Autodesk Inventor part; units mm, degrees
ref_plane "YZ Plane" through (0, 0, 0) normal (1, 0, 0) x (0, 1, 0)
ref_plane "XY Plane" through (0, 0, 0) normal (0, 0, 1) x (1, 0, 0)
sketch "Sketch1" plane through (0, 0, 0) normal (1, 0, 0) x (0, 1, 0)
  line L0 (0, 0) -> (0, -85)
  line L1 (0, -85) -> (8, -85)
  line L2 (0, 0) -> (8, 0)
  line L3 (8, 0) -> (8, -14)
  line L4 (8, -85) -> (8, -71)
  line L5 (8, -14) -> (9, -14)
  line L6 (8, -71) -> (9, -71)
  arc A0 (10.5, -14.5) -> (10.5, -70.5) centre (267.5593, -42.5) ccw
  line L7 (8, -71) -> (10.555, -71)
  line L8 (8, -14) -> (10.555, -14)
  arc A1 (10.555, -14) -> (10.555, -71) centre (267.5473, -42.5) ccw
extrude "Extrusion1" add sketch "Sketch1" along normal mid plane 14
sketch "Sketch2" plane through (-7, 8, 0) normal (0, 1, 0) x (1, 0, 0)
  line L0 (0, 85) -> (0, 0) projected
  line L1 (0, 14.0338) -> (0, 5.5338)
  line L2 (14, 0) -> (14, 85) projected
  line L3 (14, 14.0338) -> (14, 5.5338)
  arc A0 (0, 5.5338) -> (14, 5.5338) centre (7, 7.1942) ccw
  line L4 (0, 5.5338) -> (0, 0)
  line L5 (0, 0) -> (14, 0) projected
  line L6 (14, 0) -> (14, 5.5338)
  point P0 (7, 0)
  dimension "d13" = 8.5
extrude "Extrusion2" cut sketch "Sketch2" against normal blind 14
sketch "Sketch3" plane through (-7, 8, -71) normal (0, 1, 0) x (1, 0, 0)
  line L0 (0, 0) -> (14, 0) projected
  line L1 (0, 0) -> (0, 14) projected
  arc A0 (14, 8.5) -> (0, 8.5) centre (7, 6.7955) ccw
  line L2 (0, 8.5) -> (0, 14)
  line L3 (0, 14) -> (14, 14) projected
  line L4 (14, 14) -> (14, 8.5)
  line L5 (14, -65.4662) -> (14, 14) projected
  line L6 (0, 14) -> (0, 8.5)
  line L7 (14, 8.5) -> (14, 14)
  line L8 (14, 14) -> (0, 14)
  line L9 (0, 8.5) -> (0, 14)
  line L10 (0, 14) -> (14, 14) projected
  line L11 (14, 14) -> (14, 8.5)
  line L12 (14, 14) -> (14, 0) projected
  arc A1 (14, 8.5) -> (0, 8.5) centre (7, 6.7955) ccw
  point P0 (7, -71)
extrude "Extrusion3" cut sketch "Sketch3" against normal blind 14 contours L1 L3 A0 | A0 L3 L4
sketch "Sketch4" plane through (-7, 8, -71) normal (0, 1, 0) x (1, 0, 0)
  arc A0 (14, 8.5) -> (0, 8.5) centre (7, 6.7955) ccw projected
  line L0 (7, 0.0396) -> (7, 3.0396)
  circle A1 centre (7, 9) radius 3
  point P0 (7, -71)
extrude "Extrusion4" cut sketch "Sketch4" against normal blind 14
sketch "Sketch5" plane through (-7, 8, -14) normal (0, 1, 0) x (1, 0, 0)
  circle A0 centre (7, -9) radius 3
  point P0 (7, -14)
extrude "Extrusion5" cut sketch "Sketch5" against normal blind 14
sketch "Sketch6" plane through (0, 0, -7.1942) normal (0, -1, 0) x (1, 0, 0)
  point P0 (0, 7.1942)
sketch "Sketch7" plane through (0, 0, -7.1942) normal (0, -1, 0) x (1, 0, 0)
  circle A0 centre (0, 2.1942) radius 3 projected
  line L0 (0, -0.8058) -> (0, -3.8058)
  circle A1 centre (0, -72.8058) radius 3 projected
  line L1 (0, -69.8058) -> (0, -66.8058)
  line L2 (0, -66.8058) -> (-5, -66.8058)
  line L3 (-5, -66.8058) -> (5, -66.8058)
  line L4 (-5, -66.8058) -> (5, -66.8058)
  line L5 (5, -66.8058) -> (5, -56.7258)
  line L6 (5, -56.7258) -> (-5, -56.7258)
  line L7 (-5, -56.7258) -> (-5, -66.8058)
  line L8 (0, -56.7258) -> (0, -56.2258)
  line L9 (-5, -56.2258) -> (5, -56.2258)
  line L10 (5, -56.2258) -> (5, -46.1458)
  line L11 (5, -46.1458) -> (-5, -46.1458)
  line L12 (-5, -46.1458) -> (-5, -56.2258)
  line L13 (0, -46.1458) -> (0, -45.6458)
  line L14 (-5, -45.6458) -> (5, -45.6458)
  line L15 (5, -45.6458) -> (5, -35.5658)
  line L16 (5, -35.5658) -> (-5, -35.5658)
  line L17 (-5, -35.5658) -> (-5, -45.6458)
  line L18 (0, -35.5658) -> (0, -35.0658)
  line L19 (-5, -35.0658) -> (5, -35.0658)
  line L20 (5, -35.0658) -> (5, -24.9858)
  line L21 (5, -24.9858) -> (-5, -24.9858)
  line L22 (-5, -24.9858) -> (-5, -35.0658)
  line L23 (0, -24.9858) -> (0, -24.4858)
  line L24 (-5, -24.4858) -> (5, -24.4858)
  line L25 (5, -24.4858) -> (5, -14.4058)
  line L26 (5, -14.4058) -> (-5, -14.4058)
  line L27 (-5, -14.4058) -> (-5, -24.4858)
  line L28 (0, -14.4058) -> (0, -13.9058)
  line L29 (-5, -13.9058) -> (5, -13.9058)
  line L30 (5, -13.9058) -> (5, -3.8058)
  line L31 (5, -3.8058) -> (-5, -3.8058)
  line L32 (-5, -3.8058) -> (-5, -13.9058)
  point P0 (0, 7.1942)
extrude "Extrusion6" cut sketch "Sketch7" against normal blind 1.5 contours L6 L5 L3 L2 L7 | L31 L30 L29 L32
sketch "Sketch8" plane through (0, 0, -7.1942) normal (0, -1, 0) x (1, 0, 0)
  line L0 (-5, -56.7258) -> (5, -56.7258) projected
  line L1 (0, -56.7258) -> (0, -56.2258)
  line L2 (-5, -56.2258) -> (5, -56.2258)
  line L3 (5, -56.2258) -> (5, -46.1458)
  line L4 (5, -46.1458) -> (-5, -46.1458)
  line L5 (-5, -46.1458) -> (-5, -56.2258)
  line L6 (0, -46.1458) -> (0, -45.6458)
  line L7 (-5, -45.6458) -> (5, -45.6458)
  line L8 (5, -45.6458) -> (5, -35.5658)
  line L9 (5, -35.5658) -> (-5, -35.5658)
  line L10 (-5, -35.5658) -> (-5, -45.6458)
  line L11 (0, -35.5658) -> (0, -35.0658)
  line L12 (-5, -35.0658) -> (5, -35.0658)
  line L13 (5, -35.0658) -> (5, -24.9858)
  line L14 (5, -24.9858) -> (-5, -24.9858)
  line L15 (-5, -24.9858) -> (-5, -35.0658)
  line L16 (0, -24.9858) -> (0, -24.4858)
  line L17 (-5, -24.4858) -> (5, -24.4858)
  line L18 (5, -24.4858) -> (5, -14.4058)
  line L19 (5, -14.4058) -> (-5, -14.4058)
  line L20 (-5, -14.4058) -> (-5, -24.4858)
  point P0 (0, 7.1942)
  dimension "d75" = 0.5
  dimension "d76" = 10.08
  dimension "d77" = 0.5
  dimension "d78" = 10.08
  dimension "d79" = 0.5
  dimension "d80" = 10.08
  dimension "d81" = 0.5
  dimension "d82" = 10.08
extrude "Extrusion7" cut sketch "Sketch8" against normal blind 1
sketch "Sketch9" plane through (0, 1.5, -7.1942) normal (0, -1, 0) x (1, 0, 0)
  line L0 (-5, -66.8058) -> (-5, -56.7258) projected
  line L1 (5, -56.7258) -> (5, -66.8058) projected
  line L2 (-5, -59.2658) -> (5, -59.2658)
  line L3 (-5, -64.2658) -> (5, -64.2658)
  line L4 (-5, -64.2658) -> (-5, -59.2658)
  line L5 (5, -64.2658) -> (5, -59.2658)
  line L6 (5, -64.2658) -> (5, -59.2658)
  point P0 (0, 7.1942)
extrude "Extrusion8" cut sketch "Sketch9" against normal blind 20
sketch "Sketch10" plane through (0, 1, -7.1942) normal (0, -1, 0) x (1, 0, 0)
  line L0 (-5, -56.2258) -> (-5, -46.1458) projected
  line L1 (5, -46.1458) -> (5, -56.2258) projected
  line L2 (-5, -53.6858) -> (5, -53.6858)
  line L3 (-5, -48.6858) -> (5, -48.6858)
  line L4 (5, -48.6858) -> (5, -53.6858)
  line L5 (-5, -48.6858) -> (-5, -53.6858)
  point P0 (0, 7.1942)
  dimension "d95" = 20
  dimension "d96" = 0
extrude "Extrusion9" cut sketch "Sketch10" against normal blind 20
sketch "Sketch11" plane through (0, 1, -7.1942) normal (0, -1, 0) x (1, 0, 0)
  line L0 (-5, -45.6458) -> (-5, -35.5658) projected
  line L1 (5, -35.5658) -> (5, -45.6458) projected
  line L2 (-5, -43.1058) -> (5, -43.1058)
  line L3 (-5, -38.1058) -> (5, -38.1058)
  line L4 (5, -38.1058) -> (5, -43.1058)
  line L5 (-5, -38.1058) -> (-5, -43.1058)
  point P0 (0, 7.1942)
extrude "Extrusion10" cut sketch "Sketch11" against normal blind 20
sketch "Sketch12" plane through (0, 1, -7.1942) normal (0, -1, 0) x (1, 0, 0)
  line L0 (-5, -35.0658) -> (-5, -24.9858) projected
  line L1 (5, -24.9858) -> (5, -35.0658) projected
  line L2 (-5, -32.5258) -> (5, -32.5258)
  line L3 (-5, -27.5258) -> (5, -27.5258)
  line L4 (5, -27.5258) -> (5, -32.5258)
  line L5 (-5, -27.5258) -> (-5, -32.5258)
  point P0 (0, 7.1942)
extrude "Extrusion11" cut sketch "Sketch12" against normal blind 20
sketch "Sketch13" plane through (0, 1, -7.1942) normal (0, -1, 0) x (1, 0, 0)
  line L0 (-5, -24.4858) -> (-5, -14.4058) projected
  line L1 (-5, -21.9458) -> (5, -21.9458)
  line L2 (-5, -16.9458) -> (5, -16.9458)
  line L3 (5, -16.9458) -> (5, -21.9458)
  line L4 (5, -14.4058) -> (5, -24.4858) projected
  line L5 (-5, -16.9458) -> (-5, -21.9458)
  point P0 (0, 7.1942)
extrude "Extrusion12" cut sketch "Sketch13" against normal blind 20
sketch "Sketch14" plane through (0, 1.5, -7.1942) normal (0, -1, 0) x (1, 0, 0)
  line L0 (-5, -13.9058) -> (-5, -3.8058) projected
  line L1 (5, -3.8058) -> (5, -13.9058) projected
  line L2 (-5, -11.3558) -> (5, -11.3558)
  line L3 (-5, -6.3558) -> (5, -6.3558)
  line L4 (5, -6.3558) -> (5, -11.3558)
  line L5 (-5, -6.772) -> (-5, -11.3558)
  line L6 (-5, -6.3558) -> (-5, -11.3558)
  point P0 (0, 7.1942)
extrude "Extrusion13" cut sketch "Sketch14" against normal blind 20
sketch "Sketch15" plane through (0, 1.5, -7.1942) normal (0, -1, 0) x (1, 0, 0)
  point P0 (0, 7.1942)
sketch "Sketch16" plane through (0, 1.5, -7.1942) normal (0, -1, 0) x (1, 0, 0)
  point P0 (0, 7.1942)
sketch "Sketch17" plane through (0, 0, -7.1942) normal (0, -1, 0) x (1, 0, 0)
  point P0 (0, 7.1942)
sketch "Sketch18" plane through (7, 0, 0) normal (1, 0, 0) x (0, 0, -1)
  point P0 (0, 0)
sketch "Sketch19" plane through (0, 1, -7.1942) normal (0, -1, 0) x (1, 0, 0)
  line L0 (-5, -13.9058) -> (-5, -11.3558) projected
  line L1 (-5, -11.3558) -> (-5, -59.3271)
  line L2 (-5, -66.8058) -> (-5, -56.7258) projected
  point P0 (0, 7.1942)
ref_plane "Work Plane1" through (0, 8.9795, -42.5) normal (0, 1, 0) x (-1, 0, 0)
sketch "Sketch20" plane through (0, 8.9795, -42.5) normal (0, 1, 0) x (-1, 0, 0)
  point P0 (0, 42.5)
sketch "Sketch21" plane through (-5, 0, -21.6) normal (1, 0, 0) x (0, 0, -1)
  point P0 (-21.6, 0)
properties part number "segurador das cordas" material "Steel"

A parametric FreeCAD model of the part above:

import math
import FreeCAD as App
import Part
import Sketcher

doc = App.newDocument("Part")
body = doc.addObject("PartDesign::Body", "Body")

# Sketch on YZ plane
sketch1 = doc.addObject("Sketcher::SketchObject", "Sketch")
body.addObject(sketch1)
sketch1.AttachmentSupport = (doc.YZ_Plane, [""])
sketch1.MapMode = "FlatFace"
sketch1.addGeometry([
    Part.LineSegment(App.Vector(8, 0, 0), App.Vector(0, 0, 0)),  # 0
    Part.LineSegment(App.Vector(0, 0, 0), App.Vector(0, -85, 0)),  # 1
    Part.LineSegment(App.Vector(0, -85, 0), App.Vector(8, -85, 0)),  # 2
    Part.LineSegment(App.Vector(8, -85, 0), App.Vector(8, -71, 0)),  # 3
    Part.LineSegment(App.Vector(8, -71, 0), App.Vector(10.555, -71, 0)),  # 4
    Part.ArcOfCircle(Part.Circle(App.Vector(267.5473, -42.5, 0), App.Vector(0, 0, 1), 258.567771), math.radians(-173.783318), math.radians(-173.671855)),  # 5
    Part.ArcOfCircle(Part.Circle(App.Vector(267.5593, -42.5, 0), App.Vector(0, 0, 1), 258.579743), math.radians(173.783606), math.radians(186.216394)),  # 6
    Part.ArcOfCircle(Part.Circle(App.Vector(267.5473, -42.5, 0), App.Vector(0, 0, 1), 258.567771), math.radians(173.671855), math.radians(173.783318)),  # 7
    Part.LineSegment(App.Vector(10.555, -14, 0), App.Vector(8, -14, 0)),  # 8
    Part.LineSegment(App.Vector(8, -14, 0), App.Vector(8, 0, 0)),  # 9
], False)
sketch1.addConstraint([
    Sketcher.Constraint("Coincident", 0, 2, 1, 1),
    Sketcher.Constraint("Coincident", 1, 2, 2, 1),
    Sketcher.Constraint("Coincident", 2, 2, 3, 1),
    Sketcher.Constraint("Coincident", 3, 2, 4, 1),
    Sketcher.Constraint("Coincident", 4, 2, 5, 2),
    Sketcher.Constraint("Coincident", 5, 1, 6, 2),
    Sketcher.Constraint("Coincident", 6, 1, 7, 2),
    Sketcher.Constraint("Coincident", 7, 1, 8, 1),
    Sketcher.Constraint("Coincident", 8, 2, 9, 1),
    Sketcher.Constraint("Coincident", 9, 2, 0, 1),
    Sketcher.Constraint("Horizontal", 0),
    Sketcher.Constraint("Vertical", 1),
    Sketcher.Constraint("Horizontal", 2),
    Sketcher.Constraint("Vertical", 3),
    Sketcher.Constraint("Horizontal", 4),
    Sketcher.Constraint("Horizontal", 8),
    Sketcher.Constraint("Vertical", 9),
    Sketcher.Constraint("Coincident", 0, 2, -1, 1),
    Sketcher.Constraint("Coincident", 7, 3, 5, 3),
    Sketcher.Constraint("DistanceX", 0, 2, 0, 1, 8.0),
    Sketcher.Constraint("DistanceX", 2, 1, 2, 2, 8.0),
    Sketcher.Constraint("DistanceY", 1, 2, 1, 1, 85.0),
    Sketcher.Constraint("DistanceY", 3, 1, 3, 2, 14.0),
    Sketcher.Constraint("DistanceY", 9, 1, 9, 2, 14.0),
    Sketcher.Constraint("DistanceY", 5, 1, 6, 1, 56.0),
    Sketcher.Constraint("DistanceY", 5, 3, -1, 1, 42.5),
    Sketcher.Constraint("DistanceY", 6, 3, -1, 1, 42.5),
    Sketcher.Constraint("DistanceX", -1, 1, 5, 1, 10.5),
    Sketcher.Constraint("DistanceY", 5, 1, -1, 1, 70.5),
    Sketcher.Constraint("Radius", 5, 258.5678),
    Sketcher.Constraint("Radius", 6, 258.5797),
])
pad1 = doc.addObject("PartDesign::Pad", "Pad")
body.addObject(pad1)
pad1.Profile = sketch1
pad1.Length = 14
pad1.Midplane = True

# Sketch on XZ plane
sketch2 = doc.addObject("Sketcher::SketchObject", "Sketch001")
body.addObject(sketch2)
sketch2.AttachmentSupport = (doc.XZ_Plane, [""])
sketch2.MapMode = "FlatFace"
sketch2.AttachmentOffset = App.Placement(App.Vector(0, 0, -8), App.Rotation())
sketch2.addGeometry([
    Part.ArcOfCircle(Part.Circle(App.Vector(0, -7, 0), App.Vector(0, 0, 1), 7), math.radians(90), math.radians(167)),  # 0
    Part.LineSegment(App.Vector(-7, -6, 0), App.Vector(-7, 0, 0)),  # 1
    Part.LineSegment(App.Vector(-7, 0, 0), App.Vector(0, 0, 0)),  # 2
    Part.ArcOfCircle(Part.Circle(App.Vector(0, -7, 0), App.Vector(0, 0, 1), 7), math.radians(13), math.radians(90)),  # 3
    Part.LineSegment(App.Vector(0, 0, 0), App.Vector(7, 0, 0)),  # 4
    Part.LineSegment(App.Vector(7, 0, 0), App.Vector(7, -6, 0)),  # 5
], False)
sketch2.addConstraint([
    Sketcher.Constraint("Coincident", 0, 2, 1, 1),
    Sketcher.Constraint("Coincident", 1, 2, 2, 1),
    Sketcher.Constraint("Tangent", 2, 2, 0, 1),
    Sketcher.Constraint("Tangent", 3, 2, 4, 1),
    Sketcher.Constraint("Coincident", 4, 2, 5, 1),
    Sketcher.Constraint("Coincident", 5, 2, 3, 1),
    Sketcher.Constraint("Vertical", 1),
    Sketcher.Constraint("Horizontal", 2),
    Sketcher.Constraint("Horizontal", 4),
    Sketcher.Constraint("Vertical", 5),
    Sketcher.Constraint("Coincident", 2, 2, -1, 1),
    Sketcher.Constraint("Coincident", 3, 2, -1, 1),
    Sketcher.Constraint("Equal", 0, 3),
    Sketcher.Constraint("Horizontal", 0, 2, 5, 2),
    Sketcher.Constraint("DistanceX", 2, 1, 2, 2, 7.0),
    Sketcher.Constraint("Radius", 0, 7.1942),
])
pocket1 = doc.addObject("PartDesign::Pocket", "Pocket")
body.addObject(pocket1)
pocket1.Profile = sketch2
pocket1.Length = 14
pocket1.Reversed = True

# Sketch on XZ plane
sketch3 = doc.addObject("Sketcher::SketchObject", "Sketch002")
body.addObject(sketch3)
sketch3.AttachmentSupport = (doc.XZ_Plane, [""])
sketch3.MapMode = "FlatFace"
sketch3.AttachmentOffset = App.Placement(App.Vector(0, 0, -8), App.Rotation())
sketch3.addGeometry([
    Part.LineSegment(App.Vector(-7, -85, 0), App.Vector(-7, -80, 0)),  # 0
    Part.ArcOfCircle(Part.Circle(App.Vector(0, -78, 0), App.Vector(0, 0, 1), 7), math.radians(-166), math.radians(-90)),  # 1
    Part.LineSegment(App.Vector(0, -85, 0), App.Vector(-7, -85, 0)),  # 2
    Part.ArcOfCircle(Part.Circle(App.Vector(0, -78, 0), App.Vector(0, 0, 1), 7), math.radians(-90), math.radians(-14)),  # 3
    Part.LineSegment(App.Vector(7, -80, 0), App.Vector(7, -85, 0)),  # 4
    Part.LineSegment(App.Vector(7, -85, 0), App.Vector(0, -85, 0)),  # 5
], False)
sketch3.addConstraint([
    Sketcher.Constraint("Coincident", 0, 2, 1, 1),
    Sketcher.Constraint("Tangent", 1, 2, 2, 1),
    Sketcher.Constraint("Coincident", 2, 2, 0, 1),
    Sketcher.Constraint("Coincident", 3, 2, 4, 1),
    Sketcher.Constraint("Coincident", 4, 2, 5, 1),
    Sketcher.Constraint("Tangent", 5, 2, 3, 1),
    Sketcher.Constraint("Vertical", 0),
    Sketcher.Constraint("Horizontal", 2),
    Sketcher.Constraint("Vertical", 4),
    Sketcher.Constraint("Horizontal", 5),
    Sketcher.Constraint("Coincident", 3, 3, 1, 3),
    Sketcher.Constraint("Equal", 1, 3),
    Sketcher.Constraint("Symmetric", 0, 2, 3, 2, -2),
    Sketcher.Constraint("DistanceX", 2, 2, 2, 1, 7.0),
    Sketcher.Constraint("DistanceY", 0, 1, 0, 2, 5.5),
    Sketcher.Constraint("DistanceY", 1, 2, -1, 1, 85.0),
])
pocket2 = doc.addObject("PartDesign::Pocket", "Pocket001")
body.addObject(pocket2)
pocket2.Profile = sketch3
pocket2.Length = 14
pocket2.Reversed = True

# Sketch on XZ plane
sketch4 = doc.addObject("Sketcher::SketchObject", "Sketch003")
body.addObject(sketch4)
sketch4.AttachmentSupport = (doc.XZ_Plane, [""])
sketch4.MapMode = "FlatFace"
sketch4.AttachmentOffset = App.Placement(App.Vector(0, 0, -8), App.Rotation())
sketch4.addGeometry(Part.Circle(App.Vector(0, -80, 0), App.Vector(0, 0, 1), 3), False)
sketch4.addConstraint([
    Sketcher.Constraint("PointOnObject", 0, 3, -2),
    Sketcher.Constraint("Diameter", 0, 6.0),
    Sketcher.Constraint("DistanceY", 0, 3, -1, 1, 80.0),
])
pocket3 = doc.addObject("PartDesign::Pocket", "Pocket002")
body.addObject(pocket3)
pocket3.Profile = sketch4
pocket3.Length = 14
pocket3.Reversed = True

# Sketch on XZ plane
sketch5 = doc.addObject("Sketcher::SketchObject", "Sketch004")
body.addObject(sketch5)
sketch5.AttachmentSupport = (doc.XZ_Plane, [""])
sketch5.MapMode = "FlatFace"
sketch5.AttachmentOffset = App.Placement(App.Vector(0, 0, -8), App.Rotation())
sketch5.addGeometry(Part.Circle(App.Vector(0, -5, 0), App.Vector(0, 0, 1), 3), False)
sketch5.addConstraint([
    Sketcher.Constraint("PointOnObject", 0, 3, -2),
    Sketcher.Constraint("Diameter", 0, 6.0),
    Sketcher.Constraint("DistanceY", 0, 3, -1, 1, 5.0),
])
pocket4 = doc.addObject("PartDesign::Pocket", "Pocket003")
body.addObject(pocket4)
pocket4.Profile = sketch5
pocket4.Length = 14
pocket4.Reversed = True

# Sketch on XZ plane
sketch6 = doc.addObject("Sketcher::SketchObject", "Sketch005")
body.addObject(sketch6)
sketch6.AttachmentSupport = (doc.XZ_Plane, [""])
sketch6.MapMode = "FlatFace"
sketch6.addGeometry([
    Part.LineSegment(App.Vector(5, -64, 0), App.Vector(-5, -64, 0)),  # 0
    Part.LineSegment(App.Vector(-5, -64, 0), App.Vector(-5, -74, 0)),  # 1
    Part.LineSegment(App.Vector(-5, -74, 0), App.Vector(5, -74, 0)),  # 2
    Part.LineSegment(App.Vector(5, -74, 0), App.Vector(5, -64, 0)),  # 3
    Part.LineSegment(App.Vector(5, -11, 0), App.Vector(-5, -11, 0)),  # 4
    Part.LineSegment(App.Vector(-5, -11, 0), App.Vector(-5, -21, 0)),  # 5
    Part.LineSegment(App.Vector(-5, -21, 0), App.Vector(5, -21, 0)),  # 6
    Part.LineSegment(App.Vector(5, -21, 0), App.Vector(5, -11, 0)),  # 7
], False)
sketch6.addConstraint([
    Sketcher.Constraint("Coincident", 0, 2, 1, 1),
    Sketcher.Constraint("Coincident", 1, 2, 2, 1),
    Sketcher.Constraint("Coincident", 2, 2, 3, 1),
    Sketcher.Constraint("Coincident", 3, 2, 0, 1),
    Sketcher.Constraint("Coincident", 4, 2, 5, 1),
    Sketcher.Constraint("Coincident", 5, 2, 6, 1),
    Sketcher.Constraint("Coincident", 6, 2, 7, 1),
    Sketcher.Constraint("Coincident", 7, 2, 4, 1),
    Sketcher.Constraint("Horizontal", 0),
    Sketcher.Constraint("Vertical", 1),
    Sketcher.Constraint("Horizontal", 2),
    Sketcher.Constraint("Vertical", 3),
    Sketcher.Constraint("Horizontal", 4),
    Sketcher.Constraint("Vertical", 5),
    Sketcher.Constraint("Horizontal", 6),
    Sketcher.Constraint("Vertical", 7),
    Sketcher.Constraint("Vertical", 1, 2, 4, 2),
    Sketcher.Constraint("Vertical", 3, 2, 6, 2),
    Sketcher.Constraint("DistanceX", 0, 2, 0, 1, 10.0),
    Sketcher.Constraint("DistanceY", 5, 2, 5, 1, 10.1),
    Sketcher.Constraint("DistanceX", 0, 2, -1, 1, 5.0),
    Sketcher.Constraint("DistanceY", 1, 2, -1, 1, 74.0),
    Sketcher.Constraint("DistanceY", 4, 2, -1, 1, 11.0),
    Sketcher.Constraint("DistanceY", 1, 2, 1, 1, 10.08),
])
pocket5 = doc.addObject("PartDesign::Pocket", "Pocket004")
body.addObject(pocket5)
pocket5.Profile = sketch6
pocket5.Length = 1.5

# Sketch on XZ plane
sketch7 = doc.addObject("Sketcher::SketchObject", "Sketch006")
body.addObject(sketch7)
sketch7.AttachmentSupport = (doc.XZ_Plane, [""])
sketch7.MapMode = "FlatFace"
sketch7.addGeometry([
    Part.LineSegment(App.Vector(-5, -53, 0), App.Vector(-5, -63, 0)),  # 0
    Part.LineSegment(App.Vector(-5, -63, 0), App.Vector(5, -63, 0)),  # 1
    Part.LineSegment(App.Vector(5, -63, 0), App.Vector(5, -53, 0)),  # 2
    Part.LineSegment(App.Vector(5, -53, 0), App.Vector(-5, -53, 0)),  # 3
    Part.LineSegment(App.Vector(-5, -32, 0), App.Vector(5, -32, 0)),  # 4
    Part.LineSegment(App.Vector(5, -32, 0), App.Vector(5, -22, 0)),  # 5
    Part.LineSegment(App.Vector(5, -22, 0), App.Vector(-5, -22, 0)),  # 6
    Part.LineSegment(App.Vector(-5, -22, 0), App.Vector(-5, -32, 0)),  # 7
    Part.LineSegment(App.Vector(-5, -42, 0), App.Vector(5, -42, 0)),  # 8
    Part.LineSegment(App.Vector(5, -42, 0), App.Vector(5, -32, 0)),  # 9
    Part.LineSegment(App.Vector(5, -32, 0), App.Vector(-5, -32, 0)),  # 10
    Part.LineSegment(App.Vector(-5, -32, 0), App.Vector(-5, -42, 0)),  # 11
    Part.LineSegment(App.Vector(-5, -53, 0), App.Vector(5, -53, 0)),  # 12
    Part.LineSegment(App.Vector(5, -53, 0), App.Vector(5, -43, 0)),  # 13
    Part.LineSegment(App.Vector(5, -43, 0), App.Vector(-5, -43, 0)),  # 14
    Part.LineSegment(App.Vector(-5, -43, 0), App.Vector(-5, -53, 0)),  # 15
], False)
sketch7.addConstraint([
    Sketcher.Constraint("Coincident", 0, 2, 1, 1),
    Sketcher.Constraint("Coincident", 1, 2, 2, 1),
    Sketcher.Constraint("Coincident", 2, 2, 3, 1),
    Sketcher.Constraint("Coincident", 3, 2, 0, 1),
    Sketcher.Constraint("Coincident", 4, 2, 5, 1),
    Sketcher.Constraint("Coincident", 5, 2, 6, 1),
    Sketcher.Constraint("Coincident", 6, 2, 7, 1),
    Sketcher.Constraint("Coincident", 7, 2, 4, 1),
    Sketcher.Constraint("Coincident", 8, 2, 9, 1),
    Sketcher.Constraint("Coincident", 9, 2, 10, 1),
    Sketcher.Constraint("Coincident", 10, 2, 11, 1),
    Sketcher.Constraint("Coincident", 11, 2, 8, 1),
    Sketcher.Constraint("Coincident", 12, 2, 13, 1),
    Sketcher.Constraint("Coincident", 13, 2, 14, 1),
    Sketcher.Constraint("Coincident", 14, 2, 15, 1),
    Sketcher.Constraint("Coincident", 15, 2, 12, 1),
    Sketcher.Constraint("Vertical", 0),
    Sketcher.Constraint("Horizontal", 1),
    Sketcher.Constraint("Vertical", 2),
    Sketcher.Constraint("Horizontal", 3),
    Sketcher.Constraint("Horizontal", 4),
    Sketcher.Constraint("Vertical", 5),
    Sketcher.Constraint("Horizontal", 6),
    Sketcher.Constraint("Vertical", 7),
    Sketcher.Constraint("Horizontal", 8),
    Sketcher.Constraint("Vertical", 9),
    Sketcher.Constraint("Horizontal", 10),
    Sketcher.Constraint("Vertical", 11),
    Sketcher.Constraint("Horizontal", 12),
    Sketcher.Constraint("Vertical", 13),
    Sketcher.Constraint("Horizontal", 14),
    Sketcher.Constraint("Vertical", 15),
    Sketcher.Constraint("Vertical", 2, 2, 4, 2),
    Sketcher.Constraint("Vertical", 3, 2, 6, 2),
    Sketcher.Constraint("Vertical", 5, 2, 8, 2),
    Sketcher.Constraint("Vertical", 7, 2, 10, 2),
    Sketcher.Constraint("Vertical", 9, 2, 12, 2),
    Sketcher.Constraint("Vertical", 11, 2, 14, 2),
    Sketcher.Constraint("Equal", 2, 5),
    Sketcher.Constraint("Equal", 7, 9),
    Sketcher.Constraint("Equal", 11, 13),
    Sketcher.Constraint("DistanceY", 0, 2, 0, 1, 10.08),
    Sketcher.Constraint("DistanceY", 9, 2, 4, 2, 0.5),
    Sketcher.Constraint("DistanceY", 2, 2, 12, 2, 0.5),
    Sketcher.Constraint("DistanceY", 13, 2, 8, 2, 0.5),
    Sketcher.Constraint("DistanceX", 1, 1, 1, 2, 10.0),
    Sketcher.Constraint("DistanceX", 0, 2, -1, 1, 5.0),
    Sketcher.Constraint("DistanceY", 5, 2, -1, 1, 21.6),
])
pocket6 = doc.addObject("PartDesign::Pocket", "Pocket005")
body.addObject(pocket6)
pocket6.Profile = sketch7
pocket6.Length = 1

# Sketch on XZ plane
sketch8 = doc.addObject("Sketcher::SketchObject", "Sketch007")
body.addObject(sketch8)
sketch8.AttachmentSupport = (doc.XZ_Plane, [""])
sketch8.MapMode = "FlatFace"
sketch8.AttachmentOffset = App.Placement(App.Vector(0, 0, -1.5), App.Rotation())
sketch8.addGeometry([
    Part.LineSegment(App.Vector(-5, -66, 0), App.Vector(-5, -71, 0)),
    Part.LineSegment(App.Vector(-5, -71, 0), App.Vector(5, -71, 0)),
    Part.LineSegment(App.Vector(5, -71, 0), App.Vector(5, -66, 0)),
    Part.LineSegment(App.Vector(5, -66, 0), App.Vector(-5, -66, 0)),
], False)
sketch8.addConstraint([
    Sketcher.Constraint("Coincident", 0, 2, 1, 1),
    Sketcher.Constraint("Coincident", 1, 2, 2, 1),
    Sketcher.Constraint("Coincident", 2, 2, 3, 1),
    Sketcher.Constraint("Coincident", 3, 2, 0, 1),
    Sketcher.Constraint("Vertical", 0),
    Sketcher.Constraint("Horizontal", 1),
    Sketcher.Constraint("Vertical", 2),
    Sketcher.Constraint("Horizontal", 3),
    Sketcher.Constraint("DistanceX", 1, 1, 1, 2, 10.0),
    Sketcher.Constraint("DistanceY", 0, 2, 0, 1, 5.0),
    Sketcher.Constraint("DistanceX", 0, 2, -1, 1, 5.0),
    Sketcher.Constraint("DistanceY", 0, 2, -1, 1, 71.46),
])
pocket7 = doc.addObject("PartDesign::Pocket", "Pocket006")
body.addObject(pocket7)
pocket7.Profile = sketch8
pocket7.Length = 20

# Sketch on XZ plane
sketch9 = doc.addObject("Sketcher::SketchObject", "Sketch008")
body.addObject(sketch9)
sketch9.AttachmentSupport = (doc.XZ_Plane, [""])
sketch9.MapMode = "FlatFace"
sketch9.AttachmentOffset = App.Placement(App.Vector(0, 0, -1), App.Rotation())
sketch9.addGeometry([
    Part.LineSegment(App.Vector(-5, -56, 0), App.Vector(-5, -61, 0)),
    Part.LineSegment(App.Vector(-5, -61, 0), App.Vector(5, -61, 0)),
    Part.LineSegment(App.Vector(5, -61, 0), App.Vector(5, -56, 0)),
    Part.LineSegment(App.Vector(5, -56, 0), App.Vector(-5, -56, 0)),
], False)
sketch9.addConstraint([
    Sketcher.Constraint("Coincident", 0, 2, 1, 1),
    Sketcher.Constraint("Coincident", 1, 2, 2, 1),
    Sketcher.Constraint("Coincident", 2, 2, 3, 1),
    Sketcher.Constraint("Coincident", 3, 2, 0, 1),
    Sketcher.Constraint("Vertical", 0),
    Sketcher.Constraint("Horizontal", 1),
    Sketcher.Constraint("Vertical", 2),
    Sketcher.Constraint("Horizontal", 3),
    Sketcher.Constraint("DistanceX", 1, 1, 1, 2, 10.0),
    Sketcher.Constraint("DistanceY", 0, 2, 0, 1, 5.0),
    Sketcher.Constraint("DistanceX", 0, 2, -1, 1, 5.0),
    Sketcher.Constraint("DistanceY", 0, 2, -1, 1, 60.88),
])
pocket8 = doc.addObject("PartDesign::Pocket", "Pocket007")
body.addObject(pocket8)
pocket8.Profile = sketch9
pocket8.Length = 20

# Sketch on XZ plane
sketch10 = doc.addObject("Sketcher::SketchObject", "Sketch009")
body.addObject(sketch10)
sketch10.AttachmentSupport = (doc.XZ_Plane, [""])
sketch10.MapMode = "FlatFace"
sketch10.AttachmentOffset = App.Placement(App.Vector(0, 0, -1), App.Rotation())
sketch10.addGeometry([
    Part.LineSegment(App.Vector(-5, -45, 0), App.Vector(-5, -50, 0)),
    Part.LineSegment(App.Vector(-5, -50, 0), App.Vector(5, -50, 0)),
    Part.LineSegment(App.Vector(5, -50, 0), App.Vector(5, -45, 0)),
    Part.LineSegment(App.Vector(5, -45, 0), App.Vector(-5, -45, 0)),
], False)
sketch10.addConstraint([
    Sketcher.Constraint("Coincident", 0, 2, 1, 1),
    Sketcher.Constraint("Coincident", 1, 2, 2, 1),
    Sketcher.Constraint("Coincident", 2, 2, 3, 1),
    Sketcher.Constraint("Coincident", 3, 2, 0, 1),
    Sketcher.Constraint("Vertical", 0),
    Sketcher.Constraint("Horizontal", 1),
    Sketcher.Constraint("Vertical", 2),
    Sketcher.Constraint("Horizontal", 3),
    Sketcher.Constraint("DistanceX", 1, 1, 1, 2, 10.0),
    Sketcher.Constraint("DistanceY", 0, 2, 0, 1, 5.0),
    Sketcher.Constraint("DistanceX", 0, 2, -1, 1, 5.0),
    Sketcher.Constraint("DistanceY", 0, 2, -1, 1, 50.3),
])
pocket9 = doc.addObject("PartDesign::Pocket", "Pocket008")
body.addObject(pocket9)
pocket9.Profile = sketch10
pocket9.Length = 20

# Sketch on XZ plane
sketch11 = doc.addObject("Sketcher::SketchObject", "Sketch010")
body.addObject(sketch11)
sketch11.AttachmentSupport = (doc.XZ_Plane, [""])
sketch11.MapMode = "FlatFace"
sketch11.AttachmentOffset = App.Placement(App.Vector(0, 0, -1), App.Rotation())
sketch11.addGeometry([
    Part.LineSegment(App.Vector(-5, -35, 0), App.Vector(-5, -40, 0)),
    Part.LineSegment(App.Vector(-5, -40, 0), App.Vector(5, -40, 0)),
    Part.LineSegment(App.Vector(5, -40, 0), App.Vector(5, -35, 0)),
    Part.LineSegment(App.Vector(5, -35, 0), App.Vector(-5, -35, 0)),
], False)
sketch11.addConstraint([
    Sketcher.Constraint("Coincident", 0, 2, 1, 1),
    Sketcher.Constraint("Coincident", 1, 2, 2, 1),
    Sketcher.Constraint("Coincident", 2, 2, 3, 1),
    Sketcher.Constraint("Coincident", 3, 2, 0, 1),
    Sketcher.Constraint("Vertical", 0),
    Sketcher.Constraint("Horizontal", 1),
    Sketcher.Constraint("Vertical", 2),
    Sketcher.Constraint("Horizontal", 3),
    Sketcher.Constraint("DistanceX", 1, 1, 1, 2, 10.0),
    Sketcher.Constraint("DistanceY", 0, 2, 0, 1, 5.0),
    Sketcher.Constraint("DistanceX", 0, 2, -1, 1, 5.0),
    Sketcher.Constraint("DistanceY", 0, 2, -1, 1, 39.72),
])
pocket10 = doc.addObject("PartDesign::Pocket", "Pocket009")
body.addObject(pocket10)
pocket10.Profile = sketch11
pocket10.Length = 20

# Sketch on XZ plane
sketch12 = doc.addObject("Sketcher::SketchObject", "Sketch011")
body.addObject(sketch12)
sketch12.AttachmentSupport = (doc.XZ_Plane, [""])
sketch12.MapMode = "FlatFace"
sketch12.AttachmentOffset = App.Placement(App.Vector(0, 0, -1), App.Rotation())
sketch12.addGeometry([
    Part.LineSegment(App.Vector(-5, -24, 0), App.Vector(-5, -29, 0)),
    Part.LineSegment(App.Vector(-5, -29, 0), App.Vector(5, -29, 0)),
    Part.LineSegment(App.Vector(5, -29, 0), App.Vector(5, -24, 0)),
    Part.LineSegment(App.Vector(5, -24, 0), App.Vector(-5, -24, 0)),
], False)
sketch12.addConstraint([
    Sketcher.Constraint("Coincident", 0, 2, 1, 1),
    Sketcher.Constraint("Coincident", 1, 2, 2, 1),
    Sketcher.Constraint("Coincident", 2, 2, 3, 1),
    Sketcher.Constraint("Coincident", 3, 2, 0, 1),
    Sketcher.Constraint("Vertical", 0),
    Sketcher.Constraint("Horizontal", 1),
    Sketcher.Constraint("Vertical", 2),
    Sketcher.Constraint("Horizontal", 3),
    Sketcher.Constraint("DistanceX", 1, 1, 1, 2, 10.0),
    Sketcher.Constraint("DistanceY", 0, 2, 0, 1, 5.0),
    Sketcher.Constraint("DistanceX", 0, 2, -1, 1, 5.0),
    Sketcher.Constraint("DistanceY", 0, 2, -1, 1, 29.14),
])
pocket11 = doc.addObject("PartDesign::Pocket", "Pocket010")
body.addObject(pocket11)
pocket11.Profile = sketch12
pocket11.Length = 20

# Sketch on XZ plane
sketch13 = doc.addObject("Sketcher::SketchObject", "Sketch012")
body.addObject(sketch13)
sketch13.AttachmentSupport = (doc.XZ_Plane, [""])
sketch13.MapMode = "FlatFace"
sketch13.AttachmentOffset = App.Placement(App.Vector(0, 0, -1.5), App.Rotation())
sketch13.addGeometry([
    Part.LineSegment(App.Vector(-5, -14, 0), App.Vector(-5, -19, 0)),
    Part.LineSegment(App.Vector(-5, -19, 0), App.Vector(5, -19, 0)),
    Part.LineSegment(App.Vector(5, -19, 0), App.Vector(5, -14, 0)),
    Part.LineSegment(App.Vector(5, -14, 0), App.Vector(-5, -14, 0)),
], False)
sketch13.addConstraint([
    Sketcher.Constraint("Coincident", 0, 2, 1, 1),
    Sketcher.Constraint("Coincident", 1, 2, 2, 1),
    Sketcher.Constraint("Coincident", 2, 2, 3, 1),
    Sketcher.Constraint("Coincident", 3, 2, 0, 1),
    Sketcher.Constraint("Vertical", 0),
    Sketcher.Constraint("Horizontal", 1),
    Sketcher.Constraint("Vertical", 2),
    Sketcher.Constraint("Horizontal", 3),
    Sketcher.Constraint("DistanceX", 1, 1, 1, 2, 10.0),
    Sketcher.Constraint("DistanceY", 0, 2, 0, 1, 5.0),
    Sketcher.Constraint("DistanceX", 0, 2, -1, 1, 5.0),
    Sketcher.Constraint("DistanceY", 0, 2, -1, 1, 18.55),
])
pocket12 = doc.addObject("PartDesign::Pocket", "Pocket011")
body.addObject(pocket12)
pocket12.Profile = sketch13
pocket12.Length = 20

doc.recompute()
